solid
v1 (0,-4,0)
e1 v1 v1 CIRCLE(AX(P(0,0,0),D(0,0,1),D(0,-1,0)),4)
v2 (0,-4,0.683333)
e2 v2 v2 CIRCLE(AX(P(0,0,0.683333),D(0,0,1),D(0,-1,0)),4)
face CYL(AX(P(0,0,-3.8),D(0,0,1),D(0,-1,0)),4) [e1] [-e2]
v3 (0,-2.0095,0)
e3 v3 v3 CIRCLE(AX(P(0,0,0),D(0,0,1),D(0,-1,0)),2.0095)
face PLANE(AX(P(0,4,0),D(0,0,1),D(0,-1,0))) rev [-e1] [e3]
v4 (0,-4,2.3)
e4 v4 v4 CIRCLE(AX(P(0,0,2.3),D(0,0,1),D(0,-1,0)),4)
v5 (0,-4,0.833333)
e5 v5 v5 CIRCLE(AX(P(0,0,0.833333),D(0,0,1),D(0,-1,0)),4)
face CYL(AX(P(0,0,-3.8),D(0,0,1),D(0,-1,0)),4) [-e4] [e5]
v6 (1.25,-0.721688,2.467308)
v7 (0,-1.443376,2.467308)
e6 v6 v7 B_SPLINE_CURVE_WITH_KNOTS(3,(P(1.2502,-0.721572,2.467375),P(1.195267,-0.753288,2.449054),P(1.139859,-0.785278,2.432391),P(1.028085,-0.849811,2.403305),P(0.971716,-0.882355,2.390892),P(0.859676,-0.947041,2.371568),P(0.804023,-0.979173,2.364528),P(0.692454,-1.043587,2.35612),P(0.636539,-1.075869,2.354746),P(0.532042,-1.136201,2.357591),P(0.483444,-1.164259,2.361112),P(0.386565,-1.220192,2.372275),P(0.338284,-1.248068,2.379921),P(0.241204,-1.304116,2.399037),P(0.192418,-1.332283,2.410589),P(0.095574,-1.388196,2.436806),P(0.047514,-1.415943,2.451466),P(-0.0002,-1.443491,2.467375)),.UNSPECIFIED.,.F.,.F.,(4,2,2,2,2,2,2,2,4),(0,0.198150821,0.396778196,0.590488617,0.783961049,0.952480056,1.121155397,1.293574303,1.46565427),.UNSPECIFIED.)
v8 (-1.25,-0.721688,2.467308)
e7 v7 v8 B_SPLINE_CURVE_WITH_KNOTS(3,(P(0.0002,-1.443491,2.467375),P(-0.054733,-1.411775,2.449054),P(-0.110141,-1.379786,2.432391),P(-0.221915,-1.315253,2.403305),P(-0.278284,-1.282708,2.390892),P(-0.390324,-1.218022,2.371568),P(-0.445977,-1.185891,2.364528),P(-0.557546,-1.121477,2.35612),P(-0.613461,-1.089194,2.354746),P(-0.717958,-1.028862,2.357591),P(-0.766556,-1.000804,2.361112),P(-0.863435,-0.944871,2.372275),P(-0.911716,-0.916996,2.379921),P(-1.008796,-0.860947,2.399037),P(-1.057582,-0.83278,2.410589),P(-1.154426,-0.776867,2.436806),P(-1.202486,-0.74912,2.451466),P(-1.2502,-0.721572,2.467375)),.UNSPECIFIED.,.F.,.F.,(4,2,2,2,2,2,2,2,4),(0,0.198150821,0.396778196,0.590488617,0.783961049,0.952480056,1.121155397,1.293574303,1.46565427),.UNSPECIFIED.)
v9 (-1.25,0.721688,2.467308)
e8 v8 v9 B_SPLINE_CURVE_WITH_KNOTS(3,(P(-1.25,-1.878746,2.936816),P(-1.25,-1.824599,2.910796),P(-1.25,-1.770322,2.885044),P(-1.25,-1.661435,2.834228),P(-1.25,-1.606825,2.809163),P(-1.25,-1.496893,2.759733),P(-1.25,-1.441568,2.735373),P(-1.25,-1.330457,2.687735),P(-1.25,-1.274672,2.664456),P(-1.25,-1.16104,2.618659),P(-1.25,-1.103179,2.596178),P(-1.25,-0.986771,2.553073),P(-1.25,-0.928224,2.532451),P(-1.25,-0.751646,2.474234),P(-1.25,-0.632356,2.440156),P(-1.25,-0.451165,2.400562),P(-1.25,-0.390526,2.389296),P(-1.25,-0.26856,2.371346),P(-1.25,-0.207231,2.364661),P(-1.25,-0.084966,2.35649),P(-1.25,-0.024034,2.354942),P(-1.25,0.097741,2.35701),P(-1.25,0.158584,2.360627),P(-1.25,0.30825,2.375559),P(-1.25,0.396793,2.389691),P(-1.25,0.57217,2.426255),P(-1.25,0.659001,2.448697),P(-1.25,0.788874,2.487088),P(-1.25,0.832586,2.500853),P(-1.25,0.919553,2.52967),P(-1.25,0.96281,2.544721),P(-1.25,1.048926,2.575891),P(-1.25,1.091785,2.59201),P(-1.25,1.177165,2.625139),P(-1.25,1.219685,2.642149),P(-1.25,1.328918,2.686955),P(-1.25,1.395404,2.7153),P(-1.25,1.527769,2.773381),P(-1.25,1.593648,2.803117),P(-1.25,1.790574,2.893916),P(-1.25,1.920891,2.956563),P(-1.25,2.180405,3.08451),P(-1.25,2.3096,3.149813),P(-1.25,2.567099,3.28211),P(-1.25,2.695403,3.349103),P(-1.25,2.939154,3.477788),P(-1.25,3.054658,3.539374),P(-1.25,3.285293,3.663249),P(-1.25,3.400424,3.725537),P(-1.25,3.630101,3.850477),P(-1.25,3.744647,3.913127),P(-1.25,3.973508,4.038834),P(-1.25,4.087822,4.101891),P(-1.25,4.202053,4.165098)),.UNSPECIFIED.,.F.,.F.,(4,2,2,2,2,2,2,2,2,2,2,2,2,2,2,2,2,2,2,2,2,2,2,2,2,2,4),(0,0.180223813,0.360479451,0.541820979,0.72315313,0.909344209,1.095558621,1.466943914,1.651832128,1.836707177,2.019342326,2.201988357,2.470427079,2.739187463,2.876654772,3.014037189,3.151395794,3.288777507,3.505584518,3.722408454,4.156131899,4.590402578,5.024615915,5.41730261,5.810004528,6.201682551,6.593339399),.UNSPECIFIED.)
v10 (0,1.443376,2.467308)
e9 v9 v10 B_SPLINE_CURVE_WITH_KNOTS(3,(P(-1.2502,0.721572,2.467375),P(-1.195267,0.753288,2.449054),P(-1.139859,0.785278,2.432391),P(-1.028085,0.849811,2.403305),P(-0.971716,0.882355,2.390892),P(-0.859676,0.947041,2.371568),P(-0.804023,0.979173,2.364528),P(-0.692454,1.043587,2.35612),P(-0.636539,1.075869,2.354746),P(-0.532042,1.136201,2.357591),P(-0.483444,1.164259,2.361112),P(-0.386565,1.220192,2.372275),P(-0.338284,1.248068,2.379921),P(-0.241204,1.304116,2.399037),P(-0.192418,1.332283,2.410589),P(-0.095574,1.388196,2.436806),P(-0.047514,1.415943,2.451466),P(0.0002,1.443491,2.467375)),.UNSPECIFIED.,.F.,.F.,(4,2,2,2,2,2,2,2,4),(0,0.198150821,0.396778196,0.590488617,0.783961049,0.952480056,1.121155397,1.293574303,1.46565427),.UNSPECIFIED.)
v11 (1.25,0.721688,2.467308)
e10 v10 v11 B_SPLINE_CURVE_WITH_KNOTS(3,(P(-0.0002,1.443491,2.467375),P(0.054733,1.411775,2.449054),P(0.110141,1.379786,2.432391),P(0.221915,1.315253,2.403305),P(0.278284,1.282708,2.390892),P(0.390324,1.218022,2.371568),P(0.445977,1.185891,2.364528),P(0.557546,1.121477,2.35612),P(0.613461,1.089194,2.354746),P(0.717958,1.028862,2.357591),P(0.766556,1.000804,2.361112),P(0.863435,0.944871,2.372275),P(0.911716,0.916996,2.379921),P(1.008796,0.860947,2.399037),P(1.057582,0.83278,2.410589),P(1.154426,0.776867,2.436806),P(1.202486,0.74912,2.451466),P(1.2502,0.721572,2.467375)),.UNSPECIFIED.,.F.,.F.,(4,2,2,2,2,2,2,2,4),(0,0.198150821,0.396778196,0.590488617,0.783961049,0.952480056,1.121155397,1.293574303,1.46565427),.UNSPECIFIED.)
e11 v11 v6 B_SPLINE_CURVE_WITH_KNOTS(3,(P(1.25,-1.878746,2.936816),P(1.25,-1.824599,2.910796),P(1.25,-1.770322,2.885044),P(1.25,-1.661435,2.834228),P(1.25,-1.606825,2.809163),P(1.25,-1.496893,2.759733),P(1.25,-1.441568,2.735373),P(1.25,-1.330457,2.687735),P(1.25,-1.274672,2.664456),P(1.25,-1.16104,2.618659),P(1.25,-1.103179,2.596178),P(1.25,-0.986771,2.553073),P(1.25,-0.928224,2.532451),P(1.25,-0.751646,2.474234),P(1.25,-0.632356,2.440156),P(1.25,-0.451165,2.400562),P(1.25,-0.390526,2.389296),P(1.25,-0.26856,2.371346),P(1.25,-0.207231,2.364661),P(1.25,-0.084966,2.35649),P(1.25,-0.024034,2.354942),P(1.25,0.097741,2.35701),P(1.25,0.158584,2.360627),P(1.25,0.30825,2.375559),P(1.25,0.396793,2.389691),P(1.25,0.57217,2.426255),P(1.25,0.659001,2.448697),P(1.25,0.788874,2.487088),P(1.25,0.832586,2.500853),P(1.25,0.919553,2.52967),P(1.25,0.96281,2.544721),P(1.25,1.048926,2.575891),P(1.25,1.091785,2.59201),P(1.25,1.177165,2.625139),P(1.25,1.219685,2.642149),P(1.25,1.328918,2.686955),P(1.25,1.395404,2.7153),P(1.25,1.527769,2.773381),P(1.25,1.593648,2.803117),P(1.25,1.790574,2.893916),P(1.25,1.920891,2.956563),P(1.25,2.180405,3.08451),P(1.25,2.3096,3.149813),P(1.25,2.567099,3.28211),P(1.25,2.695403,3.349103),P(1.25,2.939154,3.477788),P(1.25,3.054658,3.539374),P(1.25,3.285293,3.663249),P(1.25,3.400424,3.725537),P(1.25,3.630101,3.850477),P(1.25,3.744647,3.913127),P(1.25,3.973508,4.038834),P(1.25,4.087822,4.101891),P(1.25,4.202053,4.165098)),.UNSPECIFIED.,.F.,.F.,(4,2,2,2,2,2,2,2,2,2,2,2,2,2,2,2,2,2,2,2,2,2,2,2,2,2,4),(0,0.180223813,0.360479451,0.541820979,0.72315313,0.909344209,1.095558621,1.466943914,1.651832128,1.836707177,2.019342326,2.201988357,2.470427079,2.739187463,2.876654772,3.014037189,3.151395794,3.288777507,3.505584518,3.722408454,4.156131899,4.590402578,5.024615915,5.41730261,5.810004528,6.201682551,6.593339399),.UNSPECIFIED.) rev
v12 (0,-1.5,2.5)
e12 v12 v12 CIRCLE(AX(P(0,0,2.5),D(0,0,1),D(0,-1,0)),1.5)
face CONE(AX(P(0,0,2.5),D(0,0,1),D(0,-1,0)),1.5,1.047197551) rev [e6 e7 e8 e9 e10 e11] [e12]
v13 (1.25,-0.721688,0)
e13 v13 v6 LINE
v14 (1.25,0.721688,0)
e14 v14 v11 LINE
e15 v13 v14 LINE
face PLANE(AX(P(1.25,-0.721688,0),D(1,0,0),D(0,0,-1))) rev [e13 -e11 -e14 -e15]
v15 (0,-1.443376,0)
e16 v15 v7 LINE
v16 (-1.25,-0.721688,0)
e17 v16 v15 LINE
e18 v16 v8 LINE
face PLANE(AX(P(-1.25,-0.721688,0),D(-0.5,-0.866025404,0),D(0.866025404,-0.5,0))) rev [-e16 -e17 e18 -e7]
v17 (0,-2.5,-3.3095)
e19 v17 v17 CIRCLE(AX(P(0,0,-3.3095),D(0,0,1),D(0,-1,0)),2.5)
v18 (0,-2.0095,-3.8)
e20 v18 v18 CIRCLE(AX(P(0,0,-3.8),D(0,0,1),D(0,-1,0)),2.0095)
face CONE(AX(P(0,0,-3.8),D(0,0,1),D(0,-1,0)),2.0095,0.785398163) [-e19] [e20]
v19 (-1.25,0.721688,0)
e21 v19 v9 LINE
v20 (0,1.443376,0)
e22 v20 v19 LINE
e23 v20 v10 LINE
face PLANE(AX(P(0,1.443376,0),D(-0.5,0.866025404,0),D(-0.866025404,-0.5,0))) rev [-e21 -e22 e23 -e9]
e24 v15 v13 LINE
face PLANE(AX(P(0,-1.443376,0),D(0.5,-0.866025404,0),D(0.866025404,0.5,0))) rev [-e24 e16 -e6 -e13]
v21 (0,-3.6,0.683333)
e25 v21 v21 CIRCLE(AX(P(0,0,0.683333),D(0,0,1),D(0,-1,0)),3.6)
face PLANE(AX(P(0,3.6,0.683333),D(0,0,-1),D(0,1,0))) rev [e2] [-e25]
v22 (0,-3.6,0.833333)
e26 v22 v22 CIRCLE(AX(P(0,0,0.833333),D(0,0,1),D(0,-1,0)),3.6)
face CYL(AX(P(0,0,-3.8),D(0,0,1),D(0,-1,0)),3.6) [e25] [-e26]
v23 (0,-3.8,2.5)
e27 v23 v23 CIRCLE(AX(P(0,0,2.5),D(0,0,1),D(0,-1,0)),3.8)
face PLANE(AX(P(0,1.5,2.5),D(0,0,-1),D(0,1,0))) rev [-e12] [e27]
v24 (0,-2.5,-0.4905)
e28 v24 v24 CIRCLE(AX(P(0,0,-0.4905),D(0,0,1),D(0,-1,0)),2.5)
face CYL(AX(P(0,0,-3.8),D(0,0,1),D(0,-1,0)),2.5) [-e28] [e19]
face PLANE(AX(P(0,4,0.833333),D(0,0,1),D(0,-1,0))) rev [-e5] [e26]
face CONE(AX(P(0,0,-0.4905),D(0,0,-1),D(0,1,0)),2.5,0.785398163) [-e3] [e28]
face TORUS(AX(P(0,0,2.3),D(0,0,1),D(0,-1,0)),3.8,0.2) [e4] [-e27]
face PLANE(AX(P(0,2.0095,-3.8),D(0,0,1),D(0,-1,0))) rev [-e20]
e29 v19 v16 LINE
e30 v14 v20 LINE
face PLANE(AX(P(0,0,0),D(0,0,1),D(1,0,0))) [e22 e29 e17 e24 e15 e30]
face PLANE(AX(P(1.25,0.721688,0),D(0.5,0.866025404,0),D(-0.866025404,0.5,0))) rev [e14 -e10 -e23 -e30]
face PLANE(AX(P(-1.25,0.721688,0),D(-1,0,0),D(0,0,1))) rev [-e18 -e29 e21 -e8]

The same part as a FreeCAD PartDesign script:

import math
import FreeCAD as App
import Part
import Sketcher

V = App.Vector
Q = App.Units.Quantity

doc = App.newDocument("Part")
params = doc.addObject("Spreadsheet::Sheet", "Params")
for row, (alias, value) in enumerate([
    ("sketch1_radius", "0.2 mm"),
    ("sketch1_width", "0.4 mm"),
    ("sketch1_width2", "2.3 mm"),
    ("sketch1_height", "0.15 mm"),
    ("revolution_angle", "360 deg"),
    ("pocket1_length", "2.5 mm"),
], start=1):
    params.set(f"A{row}", alias)
    params.set(f"B{row}", "=" + value)
    params.setAlias(f"B{row}", alias)

body = doc.addObject("PartDesign::Body", "Body")

# Sketch on YZ plane
sketch1 = body.newObject("Sketcher::SketchObject", "Sketch")
sketch1.AttachmentSupport = (doc.getObject("YZ_Plane"), [""])
sketch1.MapMode = "FlatFace"
sketch1.addGeometry([
    Part.LineSegment(V(1.5, 2.5, 0), V(0, 1.633975, 0)),  # 0
    Part.LineSegment(V(0, 1.633975, 0), V(0, -3.8, 0)),  # 1
    Part.LineSegment(V(0, -3.8, 0), V(2.0095, -3.8, 0)),  # 2
    Part.LineSegment(V(2.0095, -3.8, 0), V(2.5, -3.3095, 0)),  # 3
    Part.LineSegment(V(2.5, -3.3095, 0), V(2.5, -0.4905, 0)),  # 4
    Part.LineSegment(V(2.5, -0.4905, 0), V(2.0095, 0, 0)),  # 5
    Part.LineSegment(V(2.0095, 0, 0), V(4, 0, 0)),  # 6
    Part.LineSegment(V(4, 0, 0), V(4, 0.683333, 0)),  # 7
    Part.LineSegment(V(4, 0.683333, 0), V(3.6, 0.683333, 0)),  # 8
    Part.LineSegment(V(3.6, 0.683333, 0), V(3.6, 0.833333, 0)),  # 9
    Part.LineSegment(V(3.6, 0.833333, 0), V(4, 0.833333, 0)),  # 10
    Part.LineSegment(V(4, 0.833333, 0), V(4, 2.3, 0)),  # 11
    Part.ArcOfCircle(Part.Circle(V(3.8, 2.3, 0), V(0, 0, 1), 0.2), math.radians(0), math.radians(90)),  # 12
    Part.LineSegment(V(3.8, 2.5, 0), V(1.5, 2.5, 0)),  # 13
], False)
sketch1.addConstraint([
    Sketcher.Constraint("Coincident", 0, 2, 1, 1),
    Sketcher.Constraint("Coincident", 1, 2, 2, 1),
    Sketcher.Constraint("Coincident", 2, 2, 3, 1),
    Sketcher.Constraint("Coincident", 3, 2, 4, 1),
    Sketcher.Constraint("Coincident", 4, 2, 5, 1),
    Sketcher.Constraint("Coincident", 5, 2, 6, 1),
    Sketcher.Constraint("Coincident", 6, 2, 7, 1),
    Sketcher.Constraint("Coincident", 7, 2, 8, 1),
    Sketcher.Constraint("Coincident", 8, 2, 9, 1),
    Sketcher.Constraint("Coincident", 9, 2, 10, 1),
    Sketcher.Constraint("Coincident", 10, 2, 11, 1),
    Sketcher.Constraint("Tangent", 11, 2, 12, 1),
    Sketcher.Constraint("Tangent", 12, 2, 13, 1),
    Sketcher.Constraint("Coincident", 13, 2, 0, 1),
    Sketcher.Constraint("Vertical", 1),
    Sketcher.Constraint("Horizontal", 2),
    Sketcher.Constraint("Vertical", 4),
    Sketcher.Constraint("Horizontal", 6),
    Sketcher.Constraint("Vertical", 7),
    Sketcher.Constraint("Horizontal", 8),
    Sketcher.Constraint("Vertical", 9),
    Sketcher.Constraint("Horizontal", 10),
    Sketcher.Constraint("Vertical", 11),
    Sketcher.Constraint("Horizontal", 13),
    Sketcher.Constraint("PointOnObject", 0, 2, -2),
    Sketcher.Constraint("PointOnObject", 5, 2, -1),
    Sketcher.Constraint("Perpendicular", 3, 5),
    Sketcher.Constraint("Vertical", 2, 2, 5, 2),
    Sketcher.Constraint("Vertical", 7, 2, 10, 2),
    Sketcher.Constraint("Equal", 3, 5),
    Sketcher.Constraint("Radius", 12, Q("0.2 mm")),
    Sketcher.Constraint("Angle", 0, Q("-150 deg")),
    Sketcher.Constraint("DistanceX", 8, 2, 8, 1, Q("0.4 mm")),
    Sketcher.Constraint("DistanceX", 13, 2, 13, 1, Q("2.3 mm")),
    Sketcher.Constraint("DistanceX", -1, 1, 6, 2, Q("4 mm")),
    Sketcher.Constraint("DistanceY", 9, 1, 9, 2, Q("0.15 mm")),
    Sketcher.Constraint("DistanceY", -1, 1, 12, 3, Q("2.3 mm")),
    Sketcher.Constraint("DistanceY", 1, 2, -1, 1, Q("3.8 mm")),
    Sketcher.Constraint("DistanceX", -1, 1, 3, 2, Q("2.5 mm")),
    Sketcher.Constraint("DistanceY", 4, 1, 4, 2, Q("2.819 mm")),
    Sketcher.Constraint("DistanceY", 7, 1, 7, 2, Q("0.683333 mm")),
])
sketch1.setExpression("Constraints[30]", "Params.sketch1_radius")
sketch1.setExpression("Constraints[32]", "Params.sketch1_width")
sketch1.setExpression("Constraints[33]", "Params.sketch1_width2")
sketch1.setExpression("Constraints[35]", "Params.sketch1_height")
revolution = body.newObject("PartDesign::Revolution", "Revolution")
revolution.Profile = sketch1
revolution.ReferenceAxis = (sketch1, ["V_Axis"])
revolution.setExpression("Angle", "Params.revolution_angle")

# Sketch on XY plane
sketch2 = body.newObject("Sketcher::SketchObject", "Sketch001")
sketch2.AttachmentSupport = (doc.getObject("XY_Plane"), [""])
sketch2.MapMode = "FlatFace"
sketch2.AttachmentOffset = App.Placement(V(0, 0, 2.5), App.Rotation())
sketch2.addGeometry([
    Part.LineSegment(V(-1.25, -0.721688, 0), V(0, -1.443376, 0)),  # 0
    Part.LineSegment(V(0, -1.443376, 0), V(1.25, -0.721688, 0)),  # 1
    Part.LineSegment(V(1.25, -0.721688, 0), V(1.25, 0.721688, 0)),  # 2
    Part.LineSegment(V(1.25, 0.721688, 0), V(0, 1.443376, 0)),  # 3
    Part.LineSegment(V(0, 1.443376, 0), V(-1.25, 0.721688, 0)),  # 4
    Part.LineSegment(V(-1.25, 0.721688, 0), V(-1.25, -0.721688, 0)),  # 5
], False)
sketch2.addConstraint([
    Sketcher.Constraint("Coincident", 0, 2, 1, 1),
    Sketcher.Constraint("Coincident", 1, 2, 2, 1),
    Sketcher.Constraint("Coincident", 2, 2, 3, 1),
    Sketcher.Constraint("Coincident", 3, 2, 4, 1),
    Sketcher.Constraint("Coincident", 4, 2, 5, 1),
    Sketcher.Constraint("Coincident", 5, 2, 0, 1),
    Sketcher.Constraint("Vertical", 2),
    Sketcher.Constraint("Vertical", 5),
    Sketcher.Constraint("Symmetric", 0, 2, 3, 2, -1, 1),
    Sketcher.Constraint("Symmetric", 1, 2, 4, 2, -1, 1),
    Sketcher.Constraint("PointOnObject", 0, 2, -2),
    Sketcher.Constraint("Parallel", 0, 3),
    Sketcher.Constraint("Horizontal", 2, 2, 4, 2),
    Sketcher.Constraint("Angle", 0, Q("-30 deg")),
    Sketcher.Constraint("DistanceX", 4, 2, 2, 2, Q("2.5 mm")),
    Sketcher.Constraint("DistanceY", 2, 1, 2, 2, Q("1.443376 mm")),
])
pocket1 = body.newObject("PartDesign::Pocket", "Pocket")
pocket1.Profile = sketch2
pocket1.setExpression("Length", "Params.pocket1_length")

doc.recompute()
